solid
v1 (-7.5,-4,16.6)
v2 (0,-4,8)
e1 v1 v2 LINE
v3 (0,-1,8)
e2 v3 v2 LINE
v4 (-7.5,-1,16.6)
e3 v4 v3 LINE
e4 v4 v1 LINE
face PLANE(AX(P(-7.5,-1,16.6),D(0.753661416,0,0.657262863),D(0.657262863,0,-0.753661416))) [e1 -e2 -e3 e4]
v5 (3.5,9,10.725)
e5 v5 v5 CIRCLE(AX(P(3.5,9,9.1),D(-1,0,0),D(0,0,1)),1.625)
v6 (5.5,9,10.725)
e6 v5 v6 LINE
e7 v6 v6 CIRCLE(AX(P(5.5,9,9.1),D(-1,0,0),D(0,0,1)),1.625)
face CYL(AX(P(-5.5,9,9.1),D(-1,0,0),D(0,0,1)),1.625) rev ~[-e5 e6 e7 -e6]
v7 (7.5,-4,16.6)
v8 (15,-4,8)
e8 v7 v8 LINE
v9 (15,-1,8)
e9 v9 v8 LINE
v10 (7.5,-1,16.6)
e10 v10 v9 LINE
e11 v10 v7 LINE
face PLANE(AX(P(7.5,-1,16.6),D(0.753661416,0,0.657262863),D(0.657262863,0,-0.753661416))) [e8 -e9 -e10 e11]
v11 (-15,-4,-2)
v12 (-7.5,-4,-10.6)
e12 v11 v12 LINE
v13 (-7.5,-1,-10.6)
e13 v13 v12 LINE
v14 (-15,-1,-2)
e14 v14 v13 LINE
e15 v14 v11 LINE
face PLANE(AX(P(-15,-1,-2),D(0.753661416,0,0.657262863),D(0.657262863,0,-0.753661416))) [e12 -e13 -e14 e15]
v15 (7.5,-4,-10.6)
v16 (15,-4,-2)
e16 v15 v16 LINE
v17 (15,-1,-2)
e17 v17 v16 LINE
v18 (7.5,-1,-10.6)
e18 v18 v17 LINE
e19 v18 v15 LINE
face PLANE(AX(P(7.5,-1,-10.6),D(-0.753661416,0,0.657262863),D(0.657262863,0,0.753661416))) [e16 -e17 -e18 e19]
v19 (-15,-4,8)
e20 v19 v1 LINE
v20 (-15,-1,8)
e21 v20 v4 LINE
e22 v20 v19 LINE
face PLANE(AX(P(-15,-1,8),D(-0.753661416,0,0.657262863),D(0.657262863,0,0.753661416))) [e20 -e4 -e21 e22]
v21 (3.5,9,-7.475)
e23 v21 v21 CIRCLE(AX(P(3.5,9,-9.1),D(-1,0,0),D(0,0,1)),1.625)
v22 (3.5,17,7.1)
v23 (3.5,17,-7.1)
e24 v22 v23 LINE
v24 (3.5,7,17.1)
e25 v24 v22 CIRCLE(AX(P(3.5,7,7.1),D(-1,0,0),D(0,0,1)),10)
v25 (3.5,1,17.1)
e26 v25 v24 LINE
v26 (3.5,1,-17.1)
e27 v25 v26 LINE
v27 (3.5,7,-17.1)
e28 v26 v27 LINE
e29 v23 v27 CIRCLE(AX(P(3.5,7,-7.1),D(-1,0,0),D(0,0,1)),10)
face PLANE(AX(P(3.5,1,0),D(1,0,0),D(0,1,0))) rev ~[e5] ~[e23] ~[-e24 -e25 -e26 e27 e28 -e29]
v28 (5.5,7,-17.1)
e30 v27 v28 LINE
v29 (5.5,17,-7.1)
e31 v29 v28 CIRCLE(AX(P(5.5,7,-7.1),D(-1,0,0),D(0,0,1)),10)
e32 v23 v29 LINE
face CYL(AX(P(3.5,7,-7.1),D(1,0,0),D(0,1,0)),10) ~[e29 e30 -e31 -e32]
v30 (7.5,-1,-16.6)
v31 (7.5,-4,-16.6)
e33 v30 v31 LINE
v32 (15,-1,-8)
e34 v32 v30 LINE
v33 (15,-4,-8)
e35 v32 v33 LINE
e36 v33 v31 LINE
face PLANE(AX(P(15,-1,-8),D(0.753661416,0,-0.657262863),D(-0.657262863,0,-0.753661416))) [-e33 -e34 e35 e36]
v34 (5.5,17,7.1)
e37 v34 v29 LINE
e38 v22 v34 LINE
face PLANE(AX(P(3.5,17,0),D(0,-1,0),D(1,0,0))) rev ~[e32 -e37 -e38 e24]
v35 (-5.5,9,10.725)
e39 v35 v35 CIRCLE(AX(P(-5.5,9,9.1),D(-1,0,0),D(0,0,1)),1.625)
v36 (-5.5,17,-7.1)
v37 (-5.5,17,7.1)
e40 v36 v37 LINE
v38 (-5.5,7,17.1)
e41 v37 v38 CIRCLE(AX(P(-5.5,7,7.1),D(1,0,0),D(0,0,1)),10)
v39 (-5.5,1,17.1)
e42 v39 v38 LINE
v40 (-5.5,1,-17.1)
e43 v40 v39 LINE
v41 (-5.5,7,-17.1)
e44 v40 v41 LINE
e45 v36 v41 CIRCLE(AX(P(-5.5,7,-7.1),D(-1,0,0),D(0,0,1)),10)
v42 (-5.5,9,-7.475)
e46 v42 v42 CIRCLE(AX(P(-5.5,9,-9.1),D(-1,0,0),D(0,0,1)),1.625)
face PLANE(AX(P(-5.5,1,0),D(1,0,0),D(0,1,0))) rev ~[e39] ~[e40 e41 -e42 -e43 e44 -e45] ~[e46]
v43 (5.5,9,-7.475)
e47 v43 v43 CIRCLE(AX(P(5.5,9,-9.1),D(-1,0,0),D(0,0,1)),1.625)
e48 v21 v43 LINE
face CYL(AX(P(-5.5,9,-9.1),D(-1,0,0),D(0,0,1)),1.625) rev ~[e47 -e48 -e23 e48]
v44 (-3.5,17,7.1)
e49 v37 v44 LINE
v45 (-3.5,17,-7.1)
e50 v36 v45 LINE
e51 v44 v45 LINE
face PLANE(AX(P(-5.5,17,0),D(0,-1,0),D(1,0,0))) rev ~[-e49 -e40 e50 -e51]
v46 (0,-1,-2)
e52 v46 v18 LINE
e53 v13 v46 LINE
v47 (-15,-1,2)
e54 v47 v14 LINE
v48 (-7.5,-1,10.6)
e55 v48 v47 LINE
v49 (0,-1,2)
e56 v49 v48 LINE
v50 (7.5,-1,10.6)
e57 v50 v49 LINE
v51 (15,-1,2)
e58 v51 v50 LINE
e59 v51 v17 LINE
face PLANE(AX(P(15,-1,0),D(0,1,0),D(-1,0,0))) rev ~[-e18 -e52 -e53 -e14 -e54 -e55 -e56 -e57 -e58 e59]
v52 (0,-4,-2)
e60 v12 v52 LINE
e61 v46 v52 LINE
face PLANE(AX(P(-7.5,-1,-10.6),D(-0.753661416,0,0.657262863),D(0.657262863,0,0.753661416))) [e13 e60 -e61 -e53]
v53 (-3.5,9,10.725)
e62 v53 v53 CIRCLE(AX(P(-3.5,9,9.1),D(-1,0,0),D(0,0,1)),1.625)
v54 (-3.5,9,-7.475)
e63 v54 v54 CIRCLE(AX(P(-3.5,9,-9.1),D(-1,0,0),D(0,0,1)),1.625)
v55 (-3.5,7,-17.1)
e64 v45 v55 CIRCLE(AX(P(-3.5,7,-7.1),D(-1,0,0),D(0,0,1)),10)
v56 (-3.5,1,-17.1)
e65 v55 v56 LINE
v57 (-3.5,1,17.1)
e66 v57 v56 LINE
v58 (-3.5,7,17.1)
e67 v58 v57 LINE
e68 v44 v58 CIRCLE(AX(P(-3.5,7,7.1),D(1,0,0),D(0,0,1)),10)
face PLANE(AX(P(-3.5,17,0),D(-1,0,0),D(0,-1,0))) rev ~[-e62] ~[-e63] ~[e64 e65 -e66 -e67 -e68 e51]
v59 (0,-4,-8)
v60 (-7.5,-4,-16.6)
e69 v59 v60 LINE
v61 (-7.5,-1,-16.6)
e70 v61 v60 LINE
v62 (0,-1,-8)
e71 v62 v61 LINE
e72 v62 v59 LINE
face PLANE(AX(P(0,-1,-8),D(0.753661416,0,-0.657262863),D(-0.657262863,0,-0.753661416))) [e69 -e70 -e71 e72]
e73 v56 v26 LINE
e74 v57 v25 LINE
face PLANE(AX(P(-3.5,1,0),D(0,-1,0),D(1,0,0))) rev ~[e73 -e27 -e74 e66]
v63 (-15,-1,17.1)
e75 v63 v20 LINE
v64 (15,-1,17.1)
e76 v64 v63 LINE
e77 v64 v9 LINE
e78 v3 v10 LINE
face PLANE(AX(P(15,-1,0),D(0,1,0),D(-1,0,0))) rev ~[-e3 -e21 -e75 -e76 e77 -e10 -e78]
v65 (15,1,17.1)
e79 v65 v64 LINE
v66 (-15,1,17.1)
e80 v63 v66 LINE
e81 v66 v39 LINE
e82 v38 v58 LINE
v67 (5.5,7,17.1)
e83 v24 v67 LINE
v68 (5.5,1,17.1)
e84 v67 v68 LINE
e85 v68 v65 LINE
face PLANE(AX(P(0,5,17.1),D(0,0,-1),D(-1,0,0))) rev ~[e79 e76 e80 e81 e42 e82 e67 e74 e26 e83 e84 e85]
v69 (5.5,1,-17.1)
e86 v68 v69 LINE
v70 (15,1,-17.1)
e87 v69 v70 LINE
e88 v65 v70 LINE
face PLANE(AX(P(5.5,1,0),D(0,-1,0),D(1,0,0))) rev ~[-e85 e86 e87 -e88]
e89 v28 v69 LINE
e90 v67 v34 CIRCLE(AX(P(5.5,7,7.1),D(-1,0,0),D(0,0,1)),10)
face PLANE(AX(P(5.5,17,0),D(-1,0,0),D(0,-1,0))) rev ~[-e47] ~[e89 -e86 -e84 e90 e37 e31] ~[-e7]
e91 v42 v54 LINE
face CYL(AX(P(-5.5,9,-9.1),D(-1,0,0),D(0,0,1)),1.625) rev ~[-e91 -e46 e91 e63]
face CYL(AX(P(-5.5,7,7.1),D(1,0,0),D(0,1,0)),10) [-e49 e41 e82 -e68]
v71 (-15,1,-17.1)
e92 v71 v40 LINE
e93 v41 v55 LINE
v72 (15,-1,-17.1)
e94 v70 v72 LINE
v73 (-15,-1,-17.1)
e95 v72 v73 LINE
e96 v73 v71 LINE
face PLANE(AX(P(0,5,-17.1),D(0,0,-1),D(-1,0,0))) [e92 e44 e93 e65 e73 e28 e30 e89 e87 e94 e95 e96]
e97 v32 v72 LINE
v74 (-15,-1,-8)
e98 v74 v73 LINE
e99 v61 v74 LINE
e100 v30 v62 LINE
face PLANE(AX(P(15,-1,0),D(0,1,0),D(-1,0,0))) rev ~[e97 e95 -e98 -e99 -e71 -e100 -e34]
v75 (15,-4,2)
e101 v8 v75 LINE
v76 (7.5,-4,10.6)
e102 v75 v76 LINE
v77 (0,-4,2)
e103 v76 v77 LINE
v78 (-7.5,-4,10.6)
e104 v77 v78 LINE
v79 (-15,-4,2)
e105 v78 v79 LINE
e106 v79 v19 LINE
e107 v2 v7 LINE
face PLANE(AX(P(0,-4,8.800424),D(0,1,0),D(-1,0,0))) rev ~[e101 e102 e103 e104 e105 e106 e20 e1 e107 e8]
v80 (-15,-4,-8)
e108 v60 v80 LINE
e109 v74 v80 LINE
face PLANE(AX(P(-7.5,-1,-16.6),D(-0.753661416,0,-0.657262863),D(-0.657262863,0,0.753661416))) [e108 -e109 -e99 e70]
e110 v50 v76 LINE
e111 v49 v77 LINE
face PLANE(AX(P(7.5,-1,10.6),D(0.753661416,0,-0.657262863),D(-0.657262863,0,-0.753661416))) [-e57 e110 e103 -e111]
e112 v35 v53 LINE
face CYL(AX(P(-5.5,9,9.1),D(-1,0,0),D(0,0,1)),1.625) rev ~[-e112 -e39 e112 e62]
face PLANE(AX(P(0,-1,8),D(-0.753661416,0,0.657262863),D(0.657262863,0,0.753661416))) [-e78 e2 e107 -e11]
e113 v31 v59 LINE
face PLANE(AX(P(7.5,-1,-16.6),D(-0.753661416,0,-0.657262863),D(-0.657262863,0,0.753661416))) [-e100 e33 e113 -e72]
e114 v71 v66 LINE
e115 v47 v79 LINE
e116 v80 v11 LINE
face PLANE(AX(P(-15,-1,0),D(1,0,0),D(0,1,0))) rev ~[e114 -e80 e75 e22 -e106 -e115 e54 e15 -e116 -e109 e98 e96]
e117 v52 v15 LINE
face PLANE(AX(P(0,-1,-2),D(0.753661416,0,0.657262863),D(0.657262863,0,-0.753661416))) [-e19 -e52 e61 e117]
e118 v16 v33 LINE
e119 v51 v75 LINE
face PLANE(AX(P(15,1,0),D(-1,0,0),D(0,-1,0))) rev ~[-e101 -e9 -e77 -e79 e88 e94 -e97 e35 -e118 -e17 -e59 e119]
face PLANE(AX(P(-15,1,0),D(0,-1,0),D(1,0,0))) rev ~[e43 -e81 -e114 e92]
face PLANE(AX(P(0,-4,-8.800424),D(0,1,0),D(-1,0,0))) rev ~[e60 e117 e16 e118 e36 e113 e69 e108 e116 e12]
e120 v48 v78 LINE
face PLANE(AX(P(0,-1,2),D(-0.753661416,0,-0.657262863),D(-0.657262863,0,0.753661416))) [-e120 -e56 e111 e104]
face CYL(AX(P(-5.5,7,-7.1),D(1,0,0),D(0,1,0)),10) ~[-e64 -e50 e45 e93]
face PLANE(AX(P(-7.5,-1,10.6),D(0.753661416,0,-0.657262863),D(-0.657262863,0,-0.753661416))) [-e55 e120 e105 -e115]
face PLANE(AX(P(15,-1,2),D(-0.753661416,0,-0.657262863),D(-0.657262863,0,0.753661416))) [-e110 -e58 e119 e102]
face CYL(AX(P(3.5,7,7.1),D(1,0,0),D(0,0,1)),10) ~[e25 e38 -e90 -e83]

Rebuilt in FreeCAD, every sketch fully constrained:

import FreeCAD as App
import Part
import Sketcher

V = App.Vector


def edges_at(feature, points):
    """Names of the edges that pass closest to the given points."""
    edges = feature.Shape.Edges
    near = lambda p: min(range(len(edges)), key=lambda i: edges[i].distToShape(Part.Vertex(*p))[0])
    return sorted({f"Edge{near(p) + 1}" for p in points})


def add_polygon(sketch, points):
    """Adds a closed chain of lines whose ends are joined by coincident constraints."""
    first, n = sketch.GeometryCount, len(points)
    for a, b in zip(points, points[1:] + points[:1]):
        sketch.addGeometry(Part.LineSegment(App.Vector(*a, 0), App.Vector(*b, 0)), False)
    for i in range(n):
        sketch.addConstraint(Sketcher.Constraint("Coincident", first + i, 2, first + (i + 1) % n, 1))

doc = App.newDocument("Part")
body = doc.addObject("PartDesign::Body", "Body")

sketch1 = body.newObject("Sketcher::SketchObject", "Sketch")
sketch1.AttachmentSupport = (doc.getObject("XY_Plane"), [""])
sketch1.MapMode = "FlatFace"
add_polygon(sketch1, [(-3.5, 17), (-5.5, 17), (-5.5, 1), (-15, 1), (-15, -1), (15, -1), (15, 1), (5.5, 1), (5.5, 17), (3.5, 17), (3.5, 1), (-3.5, 1)])
sketch1.addConstraint([
    Sketcher.Constraint("Horizontal", 0),
    Sketcher.Constraint("Vertical", 1),
    Sketcher.Constraint("Horizontal", 2),
    Sketcher.Constraint("Vertical", 3),
    Sketcher.Constraint("Horizontal", 4),
    Sketcher.Constraint("Vertical", 5),
    Sketcher.Constraint("Horizontal", 6),
    Sketcher.Constraint("Vertical", 7),
    Sketcher.Constraint("Horizontal", 8),
    Sketcher.Constraint("Vertical", 9),
    Sketcher.Constraint("Horizontal", 10),
    Sketcher.Constraint("Vertical", 11),
    Sketcher.Constraint("Symmetric", 2, 2, 4, 2, -1, 1),
    Sketcher.Constraint("Symmetric", 1, 2, 6, 2, -2),
    Sketcher.Constraint("Symmetric", 8, 2, 11, 2, -2),
    Sketcher.Constraint("Horizontal", 6, 2, 9, 2),
    Sketcher.Constraint("Equal", 8, 3),
    Sketcher.Constraint("DistanceX", 0, 2, 0, 1, 2.0),
    Sketcher.Constraint("DistanceX", 4, 1, 4, 2, 30.0),
    Sketcher.Constraint("DistanceX", 10, 2, 10, 1, 7.0),
    Sketcher.Constraint("DistanceY", 1, 2, 1, 1, 16.0),
])
pad1 = body.newObject("PartDesign::Pad", "Pad")
pad1.Profile = sketch1
pad1.Length = 34.2
pad1.Midplane = True
doc.recompute()

fillet = body.newObject("PartDesign::Fillet", "Fillet")
fillet.Base = (pad1, edges_at(pad1, [
    (-4.5, 17, -17.1),
    (4.5, 17, -17.1),
    (4.5, 17, 17.1),
    (-4.5, 17, 17.1),
]))
fillet.Radius = 10

sketch2 = body.newObject("Sketcher::SketchObject", "Sketch001")
sketch2.AttachmentSupport = (doc.getObject("YZ_Plane"), [""])
sketch2.MapMode = "FlatFace"
sketch2.AttachmentOffset = App.Placement(V(0, 0, -5.5), App.Rotation())
sketch2.addGeometry([
    Part.Circle(V(9, -9.1, 0), V(0, 0, 1), 1.625),
    Part.Circle(V(9, 9.1, 0), V(0, 0, 1), 1.625),
], False)
sketch2.addConstraint([
    Sketcher.Constraint("Equal", 0, 1),
    Sketcher.Constraint("Symmetric", 0, 3, 1, 3, -1),
    Sketcher.Constraint("Diameter", 0, 3.25),
    Sketcher.Constraint("DistanceX", -1, 1, 0, 3, 9.0),
    Sketcher.Constraint("DistanceY", 0, 3, -1, 1, 9.1),
])
pocket1 = body.newObject("PartDesign::Pocket", "Pocket")
pocket1.Profile = sketch2
pocket1.Type = "ThroughAll"
pocket1.Reversed = True

sketch3 = body.newObject("Sketcher::SketchObject", "Sketch002")
sketch3.AttachmentSupport = (doc.getObject("XZ_Plane"), [""])
sketch3.MapMode = "FlatFace"
sketch3.AttachmentOffset = App.Placement(V(0, 0, 1), App.Rotation())
add_polygon(sketch3, [(-7.5, 16.6), (-15, 8), (-15, 2), (-7.5, 10.6), (0, 2), (7.5, 10.6), (15, 2), (15, 8), (7.5, 16.6), (0, 8)])
add_polygon(sketch3, [(-7.5, -10.6), (-15, -2), (-15, -8), (-7.5, -16.6), (0, -8), (7.5, -16.6), (15, -8), (15, -2), (7.5, -10.6), (0, -2)])
sketch3.addConstraint([
    Sketcher.Constraint("Vertical", 1),
    Sketcher.Constraint("Vertical", 6),
    Sketcher.Constraint("Vertical", 11),
    Sketcher.Constraint("Vertical", 16),
    Sketcher.Constraint("Symmetric", 5, 2, 10, 2, -1, 1),
    Sketcher.Constraint("Symmetric", 7, 2, 12, 2, -1, 1),
    Sketcher.Constraint("Symmetric", 8, 2, 13, 2, -1, 1),
    Sketcher.Constraint("Symmetric", 9, 2, 14, 2, -1, 1),
    Sketcher.Constraint("Symmetric", 0, 2, 15, 2, -1, 1),
    Sketcher.Constraint("Symmetric", 2, 2, 17, 2, -1, 1),
    Sketcher.Constraint("Symmetric", 3, 2, 18, 2, -1, 1),
    Sketcher.Constraint("Symmetric", 4, 2, 19, 2, -1, 1),
    Sketcher.Constraint("Symmetric", 2, 2, 4, 2, -2),
    Sketcher.Constraint("Symmetric", 1, 2, 5, 2, -2),
    Sketcher.Constraint("Symmetric", 7, 2, 9, 2, -2),
    Sketcher.Constraint("PointOnObject", 3, 2, -2),
    Sketcher.Constraint("PointOnObject", 8, 2, -2),
    Sketcher.Constraint("Parallel", 0, 2),
    Sketcher.Constraint("Parallel", 2, 4),
    Sketcher.Constraint("Parallel", 5, 7),
    Sketcher.Constraint("Parallel", 4, 8),
    Sketcher.Constraint("Parallel", 10, 12),
    Sketcher.Constraint("Parallel", 15, 17),
    Sketcher.Constraint("Horizontal", 1, 2, 3, 2),
    Sketcher.Constraint("Horizontal", 6, 2, 8, 2),
    Sketcher.Constraint("DistanceY", 1, 2, 1, 1, 6.0),
    Sketcher.Constraint("DistanceX", 0, 2, -1, 1, 15.0),
    Sketcher.Constraint("DistanceY", -1, 1, 0, 2, 8.0),
    Sketcher.Constraint("DistanceY", -1, 1, 2, 2, 10.6),
])
pad2 = body.newObject("PartDesign::Pad", "Pad001")
pad2.Profile = sketch3
pad2.Length = 3

doc.recompute()
